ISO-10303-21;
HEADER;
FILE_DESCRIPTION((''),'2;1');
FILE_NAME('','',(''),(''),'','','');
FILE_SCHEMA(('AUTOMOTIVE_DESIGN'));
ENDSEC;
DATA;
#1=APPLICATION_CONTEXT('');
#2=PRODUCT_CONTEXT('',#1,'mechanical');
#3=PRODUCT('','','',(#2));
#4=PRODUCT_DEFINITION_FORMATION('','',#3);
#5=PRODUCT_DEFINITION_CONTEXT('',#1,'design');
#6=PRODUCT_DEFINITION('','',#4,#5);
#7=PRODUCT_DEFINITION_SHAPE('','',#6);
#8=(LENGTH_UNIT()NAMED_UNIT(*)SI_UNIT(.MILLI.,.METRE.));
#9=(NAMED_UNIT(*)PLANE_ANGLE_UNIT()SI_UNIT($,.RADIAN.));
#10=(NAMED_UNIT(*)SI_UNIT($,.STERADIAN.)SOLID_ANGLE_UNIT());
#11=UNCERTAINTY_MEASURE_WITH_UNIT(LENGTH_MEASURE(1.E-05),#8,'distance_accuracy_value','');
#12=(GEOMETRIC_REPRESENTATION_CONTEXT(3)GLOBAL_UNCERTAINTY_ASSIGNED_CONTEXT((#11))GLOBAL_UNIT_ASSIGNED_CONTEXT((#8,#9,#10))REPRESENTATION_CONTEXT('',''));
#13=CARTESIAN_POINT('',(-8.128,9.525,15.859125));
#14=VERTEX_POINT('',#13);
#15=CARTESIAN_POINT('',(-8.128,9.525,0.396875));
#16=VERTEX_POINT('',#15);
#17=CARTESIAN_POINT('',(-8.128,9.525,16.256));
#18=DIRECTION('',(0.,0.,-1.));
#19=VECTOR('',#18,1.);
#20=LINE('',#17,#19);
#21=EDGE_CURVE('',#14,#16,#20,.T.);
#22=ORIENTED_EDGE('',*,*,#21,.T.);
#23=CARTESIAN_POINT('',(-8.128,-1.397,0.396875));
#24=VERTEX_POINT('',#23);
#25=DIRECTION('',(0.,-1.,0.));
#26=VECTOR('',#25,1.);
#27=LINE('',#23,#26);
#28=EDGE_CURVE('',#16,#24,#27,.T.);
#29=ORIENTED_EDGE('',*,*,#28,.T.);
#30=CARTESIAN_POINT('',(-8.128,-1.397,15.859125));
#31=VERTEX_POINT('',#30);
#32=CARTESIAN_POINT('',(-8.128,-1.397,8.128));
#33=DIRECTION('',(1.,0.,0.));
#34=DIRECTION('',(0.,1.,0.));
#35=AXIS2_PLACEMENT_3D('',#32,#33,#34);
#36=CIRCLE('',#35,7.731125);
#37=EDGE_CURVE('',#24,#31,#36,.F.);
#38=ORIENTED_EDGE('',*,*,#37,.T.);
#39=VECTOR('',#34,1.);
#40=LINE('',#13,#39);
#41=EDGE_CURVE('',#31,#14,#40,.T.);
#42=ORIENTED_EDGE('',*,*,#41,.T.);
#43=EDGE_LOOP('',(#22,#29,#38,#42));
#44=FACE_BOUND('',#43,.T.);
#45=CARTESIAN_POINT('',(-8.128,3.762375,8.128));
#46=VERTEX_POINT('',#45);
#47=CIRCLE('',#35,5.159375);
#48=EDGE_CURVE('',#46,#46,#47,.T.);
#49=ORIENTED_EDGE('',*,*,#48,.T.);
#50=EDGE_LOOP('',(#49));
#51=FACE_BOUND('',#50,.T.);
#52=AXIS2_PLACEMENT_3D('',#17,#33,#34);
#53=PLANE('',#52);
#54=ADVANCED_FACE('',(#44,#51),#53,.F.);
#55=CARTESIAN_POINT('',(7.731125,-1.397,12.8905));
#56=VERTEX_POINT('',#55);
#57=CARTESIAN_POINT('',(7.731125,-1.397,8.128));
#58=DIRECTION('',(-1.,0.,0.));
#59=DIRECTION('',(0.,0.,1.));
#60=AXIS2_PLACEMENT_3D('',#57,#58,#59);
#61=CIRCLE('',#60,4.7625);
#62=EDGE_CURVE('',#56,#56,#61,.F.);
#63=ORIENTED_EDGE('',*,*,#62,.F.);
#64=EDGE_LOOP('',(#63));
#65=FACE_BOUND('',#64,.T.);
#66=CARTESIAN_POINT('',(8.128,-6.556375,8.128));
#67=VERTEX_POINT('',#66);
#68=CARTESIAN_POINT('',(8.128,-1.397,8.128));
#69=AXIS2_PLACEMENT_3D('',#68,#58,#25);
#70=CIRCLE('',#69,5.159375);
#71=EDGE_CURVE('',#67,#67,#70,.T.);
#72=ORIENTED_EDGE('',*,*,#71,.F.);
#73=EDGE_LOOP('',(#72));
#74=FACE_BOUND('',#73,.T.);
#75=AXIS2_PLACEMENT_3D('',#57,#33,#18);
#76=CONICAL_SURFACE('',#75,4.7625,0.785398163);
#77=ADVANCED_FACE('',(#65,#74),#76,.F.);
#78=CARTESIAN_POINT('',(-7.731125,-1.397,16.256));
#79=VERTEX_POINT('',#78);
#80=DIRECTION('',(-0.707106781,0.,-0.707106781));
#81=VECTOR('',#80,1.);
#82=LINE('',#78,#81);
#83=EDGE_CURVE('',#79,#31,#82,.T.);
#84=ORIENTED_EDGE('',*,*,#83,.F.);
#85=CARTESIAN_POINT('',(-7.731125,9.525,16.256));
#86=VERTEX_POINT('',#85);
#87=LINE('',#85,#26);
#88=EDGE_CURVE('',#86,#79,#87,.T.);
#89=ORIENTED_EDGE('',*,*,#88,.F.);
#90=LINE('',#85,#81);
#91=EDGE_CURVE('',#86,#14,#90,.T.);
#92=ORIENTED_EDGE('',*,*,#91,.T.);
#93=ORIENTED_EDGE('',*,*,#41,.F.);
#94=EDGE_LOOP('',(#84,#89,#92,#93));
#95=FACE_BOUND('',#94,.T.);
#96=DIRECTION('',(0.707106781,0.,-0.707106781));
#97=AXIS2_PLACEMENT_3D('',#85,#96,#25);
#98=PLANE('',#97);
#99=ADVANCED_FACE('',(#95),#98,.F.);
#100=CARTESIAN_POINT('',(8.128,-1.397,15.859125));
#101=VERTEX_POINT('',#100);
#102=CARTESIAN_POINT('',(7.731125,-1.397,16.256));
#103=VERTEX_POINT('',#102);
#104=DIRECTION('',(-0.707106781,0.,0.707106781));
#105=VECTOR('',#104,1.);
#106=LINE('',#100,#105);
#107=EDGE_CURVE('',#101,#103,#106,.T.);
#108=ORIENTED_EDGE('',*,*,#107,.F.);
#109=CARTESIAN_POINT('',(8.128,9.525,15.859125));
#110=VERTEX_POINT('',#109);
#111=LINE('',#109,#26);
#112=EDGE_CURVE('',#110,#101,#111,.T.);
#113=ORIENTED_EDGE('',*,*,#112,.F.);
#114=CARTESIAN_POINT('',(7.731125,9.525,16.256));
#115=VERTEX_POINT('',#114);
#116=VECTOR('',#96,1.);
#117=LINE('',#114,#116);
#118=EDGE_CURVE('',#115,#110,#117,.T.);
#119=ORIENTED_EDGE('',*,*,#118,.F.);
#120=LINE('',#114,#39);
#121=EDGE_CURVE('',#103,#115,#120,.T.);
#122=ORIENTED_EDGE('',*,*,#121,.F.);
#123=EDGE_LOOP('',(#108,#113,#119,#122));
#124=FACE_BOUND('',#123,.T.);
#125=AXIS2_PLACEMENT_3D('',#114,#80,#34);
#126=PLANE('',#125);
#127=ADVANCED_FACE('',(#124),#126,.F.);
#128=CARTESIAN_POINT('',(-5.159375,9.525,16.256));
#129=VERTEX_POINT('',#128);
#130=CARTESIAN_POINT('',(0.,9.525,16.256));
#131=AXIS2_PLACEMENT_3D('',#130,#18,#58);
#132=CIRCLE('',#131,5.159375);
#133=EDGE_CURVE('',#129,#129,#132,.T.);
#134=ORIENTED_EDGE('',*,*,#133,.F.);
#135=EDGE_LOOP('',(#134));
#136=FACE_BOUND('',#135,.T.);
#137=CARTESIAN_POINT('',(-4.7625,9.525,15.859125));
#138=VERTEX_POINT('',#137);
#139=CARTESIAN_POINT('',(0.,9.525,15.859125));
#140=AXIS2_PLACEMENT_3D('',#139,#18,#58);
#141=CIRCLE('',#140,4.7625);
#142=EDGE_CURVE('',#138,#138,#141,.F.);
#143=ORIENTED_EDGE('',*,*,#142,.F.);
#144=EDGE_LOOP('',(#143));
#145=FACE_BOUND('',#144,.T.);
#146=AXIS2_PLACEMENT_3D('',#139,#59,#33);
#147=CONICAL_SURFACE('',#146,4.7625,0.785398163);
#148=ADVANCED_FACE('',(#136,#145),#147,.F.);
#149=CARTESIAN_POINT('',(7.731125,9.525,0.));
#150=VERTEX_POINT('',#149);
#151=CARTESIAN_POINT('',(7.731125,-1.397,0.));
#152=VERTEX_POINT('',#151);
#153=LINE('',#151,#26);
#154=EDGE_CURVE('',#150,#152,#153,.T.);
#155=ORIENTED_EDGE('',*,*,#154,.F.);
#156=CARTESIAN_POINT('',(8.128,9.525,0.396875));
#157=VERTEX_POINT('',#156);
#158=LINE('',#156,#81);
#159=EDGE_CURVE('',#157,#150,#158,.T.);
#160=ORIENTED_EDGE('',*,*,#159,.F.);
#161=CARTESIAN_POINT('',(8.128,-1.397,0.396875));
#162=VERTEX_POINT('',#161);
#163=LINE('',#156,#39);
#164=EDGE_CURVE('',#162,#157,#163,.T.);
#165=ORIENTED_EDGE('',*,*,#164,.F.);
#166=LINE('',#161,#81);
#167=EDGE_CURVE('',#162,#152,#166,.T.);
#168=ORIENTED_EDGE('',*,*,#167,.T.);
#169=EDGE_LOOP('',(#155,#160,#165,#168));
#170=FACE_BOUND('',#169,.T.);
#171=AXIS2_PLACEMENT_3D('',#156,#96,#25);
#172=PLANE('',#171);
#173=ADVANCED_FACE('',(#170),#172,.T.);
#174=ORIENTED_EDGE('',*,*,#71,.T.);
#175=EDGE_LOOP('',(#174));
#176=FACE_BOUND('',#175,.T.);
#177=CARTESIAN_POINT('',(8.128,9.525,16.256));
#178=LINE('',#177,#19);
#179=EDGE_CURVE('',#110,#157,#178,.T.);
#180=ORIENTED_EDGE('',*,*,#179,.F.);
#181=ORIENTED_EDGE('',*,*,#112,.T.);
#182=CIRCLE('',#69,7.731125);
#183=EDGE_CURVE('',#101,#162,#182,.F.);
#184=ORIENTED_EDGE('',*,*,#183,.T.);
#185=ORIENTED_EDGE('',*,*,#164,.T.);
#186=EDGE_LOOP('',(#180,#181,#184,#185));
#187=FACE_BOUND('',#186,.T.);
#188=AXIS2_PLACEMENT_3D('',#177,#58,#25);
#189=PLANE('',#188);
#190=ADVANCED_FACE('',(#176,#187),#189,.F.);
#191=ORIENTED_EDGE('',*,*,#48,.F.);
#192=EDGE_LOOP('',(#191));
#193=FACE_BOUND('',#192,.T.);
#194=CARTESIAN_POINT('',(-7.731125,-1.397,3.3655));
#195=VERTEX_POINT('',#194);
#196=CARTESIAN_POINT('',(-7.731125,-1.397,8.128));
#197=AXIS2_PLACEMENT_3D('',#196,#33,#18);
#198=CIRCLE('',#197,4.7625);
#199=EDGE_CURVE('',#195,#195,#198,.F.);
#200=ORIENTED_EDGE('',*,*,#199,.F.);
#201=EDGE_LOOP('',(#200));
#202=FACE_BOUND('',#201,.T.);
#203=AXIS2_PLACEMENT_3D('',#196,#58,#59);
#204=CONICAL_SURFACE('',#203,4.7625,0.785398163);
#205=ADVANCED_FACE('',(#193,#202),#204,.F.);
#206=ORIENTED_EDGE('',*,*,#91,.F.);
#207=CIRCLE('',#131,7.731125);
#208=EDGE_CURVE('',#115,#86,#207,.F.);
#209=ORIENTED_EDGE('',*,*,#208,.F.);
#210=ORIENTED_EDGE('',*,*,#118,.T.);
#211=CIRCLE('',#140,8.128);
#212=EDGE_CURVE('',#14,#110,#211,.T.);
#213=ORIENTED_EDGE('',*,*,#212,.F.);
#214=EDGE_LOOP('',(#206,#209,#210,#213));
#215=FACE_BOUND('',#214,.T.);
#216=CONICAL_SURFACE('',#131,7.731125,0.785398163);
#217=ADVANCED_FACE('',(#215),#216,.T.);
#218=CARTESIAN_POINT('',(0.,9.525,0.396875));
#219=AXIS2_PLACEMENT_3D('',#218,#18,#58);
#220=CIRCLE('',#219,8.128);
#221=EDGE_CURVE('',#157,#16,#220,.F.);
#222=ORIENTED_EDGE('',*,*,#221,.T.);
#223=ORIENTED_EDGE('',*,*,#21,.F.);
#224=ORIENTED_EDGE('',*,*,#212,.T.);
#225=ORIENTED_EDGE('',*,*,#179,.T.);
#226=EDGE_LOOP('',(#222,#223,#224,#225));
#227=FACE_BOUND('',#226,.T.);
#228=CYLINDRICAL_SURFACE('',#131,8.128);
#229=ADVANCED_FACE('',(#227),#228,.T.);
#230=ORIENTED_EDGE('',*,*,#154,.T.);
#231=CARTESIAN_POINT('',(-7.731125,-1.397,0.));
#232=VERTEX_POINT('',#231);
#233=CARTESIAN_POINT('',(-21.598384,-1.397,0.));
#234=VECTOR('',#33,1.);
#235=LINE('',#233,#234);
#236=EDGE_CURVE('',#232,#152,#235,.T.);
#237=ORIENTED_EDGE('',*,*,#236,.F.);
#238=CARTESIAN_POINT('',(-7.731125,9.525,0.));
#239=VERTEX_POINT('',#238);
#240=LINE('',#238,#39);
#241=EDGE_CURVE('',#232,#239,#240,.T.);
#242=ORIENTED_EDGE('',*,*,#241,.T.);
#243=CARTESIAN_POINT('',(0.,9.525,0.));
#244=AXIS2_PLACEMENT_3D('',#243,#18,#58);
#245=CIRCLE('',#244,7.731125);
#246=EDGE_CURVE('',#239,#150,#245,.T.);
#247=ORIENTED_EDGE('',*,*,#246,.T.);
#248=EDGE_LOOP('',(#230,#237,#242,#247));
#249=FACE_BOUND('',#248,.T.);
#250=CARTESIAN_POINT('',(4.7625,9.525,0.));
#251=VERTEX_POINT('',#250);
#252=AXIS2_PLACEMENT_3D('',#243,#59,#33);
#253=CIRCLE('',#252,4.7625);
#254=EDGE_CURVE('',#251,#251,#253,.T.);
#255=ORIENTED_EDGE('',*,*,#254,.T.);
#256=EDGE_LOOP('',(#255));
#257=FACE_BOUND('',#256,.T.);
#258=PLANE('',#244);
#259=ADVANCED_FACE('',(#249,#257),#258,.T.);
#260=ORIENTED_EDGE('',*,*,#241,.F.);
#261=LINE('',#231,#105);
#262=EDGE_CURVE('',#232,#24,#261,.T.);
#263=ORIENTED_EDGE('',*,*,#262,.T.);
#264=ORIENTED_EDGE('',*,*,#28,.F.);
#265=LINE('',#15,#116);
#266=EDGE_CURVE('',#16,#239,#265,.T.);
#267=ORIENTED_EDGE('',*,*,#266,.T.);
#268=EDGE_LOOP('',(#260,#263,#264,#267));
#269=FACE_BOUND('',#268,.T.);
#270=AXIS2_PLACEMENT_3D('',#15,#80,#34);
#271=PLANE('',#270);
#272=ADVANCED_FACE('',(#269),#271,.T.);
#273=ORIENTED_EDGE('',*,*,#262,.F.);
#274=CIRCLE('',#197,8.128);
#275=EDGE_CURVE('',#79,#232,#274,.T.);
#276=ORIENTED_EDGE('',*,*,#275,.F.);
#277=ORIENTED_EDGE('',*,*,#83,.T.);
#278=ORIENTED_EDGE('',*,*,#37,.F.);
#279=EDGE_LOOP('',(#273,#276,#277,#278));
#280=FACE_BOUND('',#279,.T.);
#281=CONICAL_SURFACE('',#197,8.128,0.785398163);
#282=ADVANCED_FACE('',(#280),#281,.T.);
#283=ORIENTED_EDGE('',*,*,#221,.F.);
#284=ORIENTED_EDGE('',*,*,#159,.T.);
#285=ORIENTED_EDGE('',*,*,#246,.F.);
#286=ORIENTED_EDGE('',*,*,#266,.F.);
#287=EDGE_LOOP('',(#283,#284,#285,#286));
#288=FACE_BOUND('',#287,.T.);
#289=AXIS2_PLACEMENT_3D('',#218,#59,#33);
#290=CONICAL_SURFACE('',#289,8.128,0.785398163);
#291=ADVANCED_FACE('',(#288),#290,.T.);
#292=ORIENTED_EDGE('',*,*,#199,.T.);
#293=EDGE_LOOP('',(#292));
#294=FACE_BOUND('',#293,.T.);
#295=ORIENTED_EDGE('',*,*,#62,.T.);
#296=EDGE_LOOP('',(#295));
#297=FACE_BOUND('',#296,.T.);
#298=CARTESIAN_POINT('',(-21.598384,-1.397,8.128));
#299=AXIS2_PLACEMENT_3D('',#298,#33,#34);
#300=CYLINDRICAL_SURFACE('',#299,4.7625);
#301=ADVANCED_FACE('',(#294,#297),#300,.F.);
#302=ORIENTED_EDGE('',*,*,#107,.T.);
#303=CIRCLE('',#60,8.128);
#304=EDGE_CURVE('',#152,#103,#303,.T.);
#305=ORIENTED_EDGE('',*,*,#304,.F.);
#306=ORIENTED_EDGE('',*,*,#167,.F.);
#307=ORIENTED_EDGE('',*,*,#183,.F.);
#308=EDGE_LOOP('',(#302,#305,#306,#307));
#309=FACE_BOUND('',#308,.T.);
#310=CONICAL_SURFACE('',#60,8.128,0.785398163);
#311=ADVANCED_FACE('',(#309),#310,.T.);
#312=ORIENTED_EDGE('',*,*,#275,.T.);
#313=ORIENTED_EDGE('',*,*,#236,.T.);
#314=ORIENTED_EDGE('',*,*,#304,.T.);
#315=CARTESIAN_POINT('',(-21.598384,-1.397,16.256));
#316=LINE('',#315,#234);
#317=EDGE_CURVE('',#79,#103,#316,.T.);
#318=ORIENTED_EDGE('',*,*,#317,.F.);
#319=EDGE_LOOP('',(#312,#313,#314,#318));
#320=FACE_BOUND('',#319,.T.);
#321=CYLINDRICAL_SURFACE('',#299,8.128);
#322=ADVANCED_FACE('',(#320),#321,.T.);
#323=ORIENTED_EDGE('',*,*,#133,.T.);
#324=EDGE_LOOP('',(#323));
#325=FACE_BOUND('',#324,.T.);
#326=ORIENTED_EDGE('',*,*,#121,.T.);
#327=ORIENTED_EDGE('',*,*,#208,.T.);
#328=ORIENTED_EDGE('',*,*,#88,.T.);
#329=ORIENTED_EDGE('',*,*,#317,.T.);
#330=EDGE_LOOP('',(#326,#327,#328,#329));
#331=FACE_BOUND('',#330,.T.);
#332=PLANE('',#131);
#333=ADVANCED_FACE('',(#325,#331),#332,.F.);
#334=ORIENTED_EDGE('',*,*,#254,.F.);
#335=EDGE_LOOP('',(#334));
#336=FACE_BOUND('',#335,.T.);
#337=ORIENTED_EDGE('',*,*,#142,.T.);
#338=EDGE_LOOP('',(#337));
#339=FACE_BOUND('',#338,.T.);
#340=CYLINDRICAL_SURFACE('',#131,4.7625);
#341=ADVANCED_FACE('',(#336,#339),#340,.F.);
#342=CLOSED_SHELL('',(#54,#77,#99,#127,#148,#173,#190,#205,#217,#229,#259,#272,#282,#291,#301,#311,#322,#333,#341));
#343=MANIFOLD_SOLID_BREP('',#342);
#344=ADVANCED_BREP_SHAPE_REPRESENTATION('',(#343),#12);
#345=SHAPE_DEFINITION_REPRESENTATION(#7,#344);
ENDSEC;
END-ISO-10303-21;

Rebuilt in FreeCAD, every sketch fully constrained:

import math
import FreeCAD as App
import Part
import Sketcher

V = App.Vector
Q = App.Units.Quantity


def edges_at(feature, points):
    """Names of the edges that pass closest to the given points."""
    edges = feature.Shape.Edges
    near = lambda p: min(range(len(edges)), key=lambda i: edges[i].distToShape(Part.Vertex(*p))[0])
    return sorted({f"Edge{near(p) + 1}" for p in points})

doc = App.newDocument("Part")
params = doc.addObject("Spreadsheet::Sheet", "Params")
for row, (alias, value) in enumerate([
    ("sketch1_radius", "0.32 in"),
    ("sketch1_diameter", "0.375 in"),
    ("sketch1_height", "0.75 in"),
    ("pad1_length", "0.64 in"),
    ("sketch2_radius", "0.32 in"),
    ("sketch2_diameter", "0.375 in"),
    ("pocket1_length", "0.64 in"),
    ("chamfer_size", "0.015625 in"),
], start=1):
    params.set(f"A{row}", alias)
    params.set(f"B{row}", "=" + value)
    params.setAlias(f"B{row}", alias)

body = doc.addObject("PartDesign::Body", "Body")

# Sketch on XY plane
sketch1 = body.newObject("Sketcher::SketchObject", "Sketch")
sketch1.AttachmentSupport = (doc.getObject("XY_Plane"), [""])
sketch1.MapMode = "FlatFace"
sketch1.addGeometry([
    Part.LineSegment(V(-8.128, 9.525, 0), V(-8.128, -9.525, 0)),  # 0
    Part.LineSegment(V(-8.128, -9.525, 0), V(8.128, -9.525, 0)),  # 1
    Part.LineSegment(V(8.128, -9.525, 0), V(8.128, 9.525, 0)),  # 2
    Part.ArcOfCircle(Part.Circle(V(0, 9.525, 0), V(0, 0, 1), 8.128), math.radians(0), math.radians(180)),  # 3
    Part.Circle(V(0, 9.525, 0), V(0, 0, 1), 4.7625),  # 4
], False)
sketch1.addConstraint([
    Sketcher.Constraint("Coincident", 0, 2, 1, 1),
    Sketcher.Constraint("Coincident", 1, 2, 2, 1),
    Sketcher.Constraint("Tangent", 2, 2, 3, 1),
    Sketcher.Constraint("Tangent", 3, 2, 0, 1),
    Sketcher.Constraint("Vertical", 0),
    Sketcher.Constraint("Horizontal", 1),
    Sketcher.Constraint("Vertical", 2),
    Sketcher.Constraint("Coincident", 4, 3, 3, 3),
    Sketcher.Constraint("Symmetric", 0, 2, 2, 2, -1, 1),
    Sketcher.Constraint("Radius", 3, Q("0.32 in")),
    Sketcher.Constraint("Diameter", 4, Q("0.375 in")),
    Sketcher.Constraint("DistanceY", 0, 2, 0, 1, Q("0.75 in")),
])
sketch1.setExpression("Constraints[9]", "Params.sketch1_radius")
sketch1.setExpression("Constraints[10]", "Params.sketch1_diameter")
sketch1.setExpression("Constraints[11]", "Params.sketch1_height")
pad1 = body.newObject("PartDesign::Pad", "Pad")
pad1.Profile = sketch1
pad1.setExpression("Length", "Params.pad1_length")

# Sketch on YZ plane
sketch2 = body.newObject("Sketcher::SketchObject", "Sketch001")
sketch2.AttachmentSupport = (doc.getObject("YZ_Plane"), [""])
sketch2.MapMode = "FlatFace"
sketch2.AttachmentOffset = App.Placement(V(0, 0, 0.32 * 25.4), App.Rotation())
sketch2.addGeometry([
    Part.ArcOfCircle(Part.Circle(V(-1.397, 8.128, 0), V(0, 0, 1), 8.128), math.radians(180), math.radians(270)),  # 0
    Part.LineSegment(V(-9.525, 8.128, 0), V(-9.525, 0, 0)),  # 1
    Part.LineSegment(V(-9.525, 0, 0), V(-1.397, 0, 0)),  # 2
    Part.ArcOfCircle(Part.Circle(V(-1.397, 8.128, 0), V(0, 0, 1), 8.128), math.radians(90), math.radians(180)),  # 3
    Part.LineSegment(V(-1.397, 16.256, 0), V(-9.525, 16.256, 0)),  # 4
    Part.LineSegment(V(-9.525, 16.256, 0), V(-9.525, 8.128, 0)),  # 5
    Part.Circle(V(-1.397, 8.128, 0), V(0, 0, 1), 4.7625),  # 6
], False)
sketch2.addConstraint([
    Sketcher.Constraint("Tangent", 0, 1, 1, 1),
    Sketcher.Constraint("Coincident", 1, 2, 2, 1),
    Sketcher.Constraint("Tangent", 2, 2, 0, 2),
    Sketcher.Constraint("Tangent", 3, 1, 4, 1),
    Sketcher.Constraint("Coincident", 4, 2, 5, 1),
    Sketcher.Constraint("Tangent", 5, 2, 3, 2),
    Sketcher.Constraint("Vertical", 1),
    Sketcher.Constraint("Horizontal", 2),
    Sketcher.Constraint("Horizontal", 4),
    Sketcher.Constraint("Vertical", 5),
    Sketcher.Constraint("Coincident", 3, 3, 0, 3),
    Sketcher.Constraint("Coincident", 6, 3, 0, 3),
    Sketcher.Constraint("Equal", 0, 3),
    Sketcher.Constraint("PointOnObject", 1, 2, -1),
    Sketcher.Constraint("Radius", 0, Q("0.32 in")),
    Sketcher.Constraint("Diameter", 6, Q("0.375 in")),
    Sketcher.Constraint("DistanceX", 0, 3, -1, 1, Q("0.055 in")),
])
sketch2.setExpression("Constraints[14]", "Params.sketch2_radius")
sketch2.setExpression("Constraints[15]", "Params.sketch2_diameter")
pocket1 = body.newObject("PartDesign::Pocket", "Pocket")
pocket1.Profile = sketch2
pocket1.setExpression("Length", "Params.pocket1_length")
doc.recompute()

chamfer = body.newObject("PartDesign::Chamfer", "Chamfer")
chamfer.Base = (pocket1, edges_at(pocket1, [
    (-4.763, 9.525, 16.256),
    (-8.128, 4.064, 16.256),
    (8.128, 4.064, 16.256),
    (8.128, -7.144, 2.381),
    (-8.128, -7.144, 2.381),
    (8.128, 4.064, 0),
    (8.128, -6.16, 8.128),
    (-8.128, -6.16, 8.128),
    (-8.128, 4.064, 0),
    (0, 17.653, 0),
    (0, 17.653, 16.256),
]))
chamfer.setExpression("Size", "Params.chamfer_size")

doc.recompute()
